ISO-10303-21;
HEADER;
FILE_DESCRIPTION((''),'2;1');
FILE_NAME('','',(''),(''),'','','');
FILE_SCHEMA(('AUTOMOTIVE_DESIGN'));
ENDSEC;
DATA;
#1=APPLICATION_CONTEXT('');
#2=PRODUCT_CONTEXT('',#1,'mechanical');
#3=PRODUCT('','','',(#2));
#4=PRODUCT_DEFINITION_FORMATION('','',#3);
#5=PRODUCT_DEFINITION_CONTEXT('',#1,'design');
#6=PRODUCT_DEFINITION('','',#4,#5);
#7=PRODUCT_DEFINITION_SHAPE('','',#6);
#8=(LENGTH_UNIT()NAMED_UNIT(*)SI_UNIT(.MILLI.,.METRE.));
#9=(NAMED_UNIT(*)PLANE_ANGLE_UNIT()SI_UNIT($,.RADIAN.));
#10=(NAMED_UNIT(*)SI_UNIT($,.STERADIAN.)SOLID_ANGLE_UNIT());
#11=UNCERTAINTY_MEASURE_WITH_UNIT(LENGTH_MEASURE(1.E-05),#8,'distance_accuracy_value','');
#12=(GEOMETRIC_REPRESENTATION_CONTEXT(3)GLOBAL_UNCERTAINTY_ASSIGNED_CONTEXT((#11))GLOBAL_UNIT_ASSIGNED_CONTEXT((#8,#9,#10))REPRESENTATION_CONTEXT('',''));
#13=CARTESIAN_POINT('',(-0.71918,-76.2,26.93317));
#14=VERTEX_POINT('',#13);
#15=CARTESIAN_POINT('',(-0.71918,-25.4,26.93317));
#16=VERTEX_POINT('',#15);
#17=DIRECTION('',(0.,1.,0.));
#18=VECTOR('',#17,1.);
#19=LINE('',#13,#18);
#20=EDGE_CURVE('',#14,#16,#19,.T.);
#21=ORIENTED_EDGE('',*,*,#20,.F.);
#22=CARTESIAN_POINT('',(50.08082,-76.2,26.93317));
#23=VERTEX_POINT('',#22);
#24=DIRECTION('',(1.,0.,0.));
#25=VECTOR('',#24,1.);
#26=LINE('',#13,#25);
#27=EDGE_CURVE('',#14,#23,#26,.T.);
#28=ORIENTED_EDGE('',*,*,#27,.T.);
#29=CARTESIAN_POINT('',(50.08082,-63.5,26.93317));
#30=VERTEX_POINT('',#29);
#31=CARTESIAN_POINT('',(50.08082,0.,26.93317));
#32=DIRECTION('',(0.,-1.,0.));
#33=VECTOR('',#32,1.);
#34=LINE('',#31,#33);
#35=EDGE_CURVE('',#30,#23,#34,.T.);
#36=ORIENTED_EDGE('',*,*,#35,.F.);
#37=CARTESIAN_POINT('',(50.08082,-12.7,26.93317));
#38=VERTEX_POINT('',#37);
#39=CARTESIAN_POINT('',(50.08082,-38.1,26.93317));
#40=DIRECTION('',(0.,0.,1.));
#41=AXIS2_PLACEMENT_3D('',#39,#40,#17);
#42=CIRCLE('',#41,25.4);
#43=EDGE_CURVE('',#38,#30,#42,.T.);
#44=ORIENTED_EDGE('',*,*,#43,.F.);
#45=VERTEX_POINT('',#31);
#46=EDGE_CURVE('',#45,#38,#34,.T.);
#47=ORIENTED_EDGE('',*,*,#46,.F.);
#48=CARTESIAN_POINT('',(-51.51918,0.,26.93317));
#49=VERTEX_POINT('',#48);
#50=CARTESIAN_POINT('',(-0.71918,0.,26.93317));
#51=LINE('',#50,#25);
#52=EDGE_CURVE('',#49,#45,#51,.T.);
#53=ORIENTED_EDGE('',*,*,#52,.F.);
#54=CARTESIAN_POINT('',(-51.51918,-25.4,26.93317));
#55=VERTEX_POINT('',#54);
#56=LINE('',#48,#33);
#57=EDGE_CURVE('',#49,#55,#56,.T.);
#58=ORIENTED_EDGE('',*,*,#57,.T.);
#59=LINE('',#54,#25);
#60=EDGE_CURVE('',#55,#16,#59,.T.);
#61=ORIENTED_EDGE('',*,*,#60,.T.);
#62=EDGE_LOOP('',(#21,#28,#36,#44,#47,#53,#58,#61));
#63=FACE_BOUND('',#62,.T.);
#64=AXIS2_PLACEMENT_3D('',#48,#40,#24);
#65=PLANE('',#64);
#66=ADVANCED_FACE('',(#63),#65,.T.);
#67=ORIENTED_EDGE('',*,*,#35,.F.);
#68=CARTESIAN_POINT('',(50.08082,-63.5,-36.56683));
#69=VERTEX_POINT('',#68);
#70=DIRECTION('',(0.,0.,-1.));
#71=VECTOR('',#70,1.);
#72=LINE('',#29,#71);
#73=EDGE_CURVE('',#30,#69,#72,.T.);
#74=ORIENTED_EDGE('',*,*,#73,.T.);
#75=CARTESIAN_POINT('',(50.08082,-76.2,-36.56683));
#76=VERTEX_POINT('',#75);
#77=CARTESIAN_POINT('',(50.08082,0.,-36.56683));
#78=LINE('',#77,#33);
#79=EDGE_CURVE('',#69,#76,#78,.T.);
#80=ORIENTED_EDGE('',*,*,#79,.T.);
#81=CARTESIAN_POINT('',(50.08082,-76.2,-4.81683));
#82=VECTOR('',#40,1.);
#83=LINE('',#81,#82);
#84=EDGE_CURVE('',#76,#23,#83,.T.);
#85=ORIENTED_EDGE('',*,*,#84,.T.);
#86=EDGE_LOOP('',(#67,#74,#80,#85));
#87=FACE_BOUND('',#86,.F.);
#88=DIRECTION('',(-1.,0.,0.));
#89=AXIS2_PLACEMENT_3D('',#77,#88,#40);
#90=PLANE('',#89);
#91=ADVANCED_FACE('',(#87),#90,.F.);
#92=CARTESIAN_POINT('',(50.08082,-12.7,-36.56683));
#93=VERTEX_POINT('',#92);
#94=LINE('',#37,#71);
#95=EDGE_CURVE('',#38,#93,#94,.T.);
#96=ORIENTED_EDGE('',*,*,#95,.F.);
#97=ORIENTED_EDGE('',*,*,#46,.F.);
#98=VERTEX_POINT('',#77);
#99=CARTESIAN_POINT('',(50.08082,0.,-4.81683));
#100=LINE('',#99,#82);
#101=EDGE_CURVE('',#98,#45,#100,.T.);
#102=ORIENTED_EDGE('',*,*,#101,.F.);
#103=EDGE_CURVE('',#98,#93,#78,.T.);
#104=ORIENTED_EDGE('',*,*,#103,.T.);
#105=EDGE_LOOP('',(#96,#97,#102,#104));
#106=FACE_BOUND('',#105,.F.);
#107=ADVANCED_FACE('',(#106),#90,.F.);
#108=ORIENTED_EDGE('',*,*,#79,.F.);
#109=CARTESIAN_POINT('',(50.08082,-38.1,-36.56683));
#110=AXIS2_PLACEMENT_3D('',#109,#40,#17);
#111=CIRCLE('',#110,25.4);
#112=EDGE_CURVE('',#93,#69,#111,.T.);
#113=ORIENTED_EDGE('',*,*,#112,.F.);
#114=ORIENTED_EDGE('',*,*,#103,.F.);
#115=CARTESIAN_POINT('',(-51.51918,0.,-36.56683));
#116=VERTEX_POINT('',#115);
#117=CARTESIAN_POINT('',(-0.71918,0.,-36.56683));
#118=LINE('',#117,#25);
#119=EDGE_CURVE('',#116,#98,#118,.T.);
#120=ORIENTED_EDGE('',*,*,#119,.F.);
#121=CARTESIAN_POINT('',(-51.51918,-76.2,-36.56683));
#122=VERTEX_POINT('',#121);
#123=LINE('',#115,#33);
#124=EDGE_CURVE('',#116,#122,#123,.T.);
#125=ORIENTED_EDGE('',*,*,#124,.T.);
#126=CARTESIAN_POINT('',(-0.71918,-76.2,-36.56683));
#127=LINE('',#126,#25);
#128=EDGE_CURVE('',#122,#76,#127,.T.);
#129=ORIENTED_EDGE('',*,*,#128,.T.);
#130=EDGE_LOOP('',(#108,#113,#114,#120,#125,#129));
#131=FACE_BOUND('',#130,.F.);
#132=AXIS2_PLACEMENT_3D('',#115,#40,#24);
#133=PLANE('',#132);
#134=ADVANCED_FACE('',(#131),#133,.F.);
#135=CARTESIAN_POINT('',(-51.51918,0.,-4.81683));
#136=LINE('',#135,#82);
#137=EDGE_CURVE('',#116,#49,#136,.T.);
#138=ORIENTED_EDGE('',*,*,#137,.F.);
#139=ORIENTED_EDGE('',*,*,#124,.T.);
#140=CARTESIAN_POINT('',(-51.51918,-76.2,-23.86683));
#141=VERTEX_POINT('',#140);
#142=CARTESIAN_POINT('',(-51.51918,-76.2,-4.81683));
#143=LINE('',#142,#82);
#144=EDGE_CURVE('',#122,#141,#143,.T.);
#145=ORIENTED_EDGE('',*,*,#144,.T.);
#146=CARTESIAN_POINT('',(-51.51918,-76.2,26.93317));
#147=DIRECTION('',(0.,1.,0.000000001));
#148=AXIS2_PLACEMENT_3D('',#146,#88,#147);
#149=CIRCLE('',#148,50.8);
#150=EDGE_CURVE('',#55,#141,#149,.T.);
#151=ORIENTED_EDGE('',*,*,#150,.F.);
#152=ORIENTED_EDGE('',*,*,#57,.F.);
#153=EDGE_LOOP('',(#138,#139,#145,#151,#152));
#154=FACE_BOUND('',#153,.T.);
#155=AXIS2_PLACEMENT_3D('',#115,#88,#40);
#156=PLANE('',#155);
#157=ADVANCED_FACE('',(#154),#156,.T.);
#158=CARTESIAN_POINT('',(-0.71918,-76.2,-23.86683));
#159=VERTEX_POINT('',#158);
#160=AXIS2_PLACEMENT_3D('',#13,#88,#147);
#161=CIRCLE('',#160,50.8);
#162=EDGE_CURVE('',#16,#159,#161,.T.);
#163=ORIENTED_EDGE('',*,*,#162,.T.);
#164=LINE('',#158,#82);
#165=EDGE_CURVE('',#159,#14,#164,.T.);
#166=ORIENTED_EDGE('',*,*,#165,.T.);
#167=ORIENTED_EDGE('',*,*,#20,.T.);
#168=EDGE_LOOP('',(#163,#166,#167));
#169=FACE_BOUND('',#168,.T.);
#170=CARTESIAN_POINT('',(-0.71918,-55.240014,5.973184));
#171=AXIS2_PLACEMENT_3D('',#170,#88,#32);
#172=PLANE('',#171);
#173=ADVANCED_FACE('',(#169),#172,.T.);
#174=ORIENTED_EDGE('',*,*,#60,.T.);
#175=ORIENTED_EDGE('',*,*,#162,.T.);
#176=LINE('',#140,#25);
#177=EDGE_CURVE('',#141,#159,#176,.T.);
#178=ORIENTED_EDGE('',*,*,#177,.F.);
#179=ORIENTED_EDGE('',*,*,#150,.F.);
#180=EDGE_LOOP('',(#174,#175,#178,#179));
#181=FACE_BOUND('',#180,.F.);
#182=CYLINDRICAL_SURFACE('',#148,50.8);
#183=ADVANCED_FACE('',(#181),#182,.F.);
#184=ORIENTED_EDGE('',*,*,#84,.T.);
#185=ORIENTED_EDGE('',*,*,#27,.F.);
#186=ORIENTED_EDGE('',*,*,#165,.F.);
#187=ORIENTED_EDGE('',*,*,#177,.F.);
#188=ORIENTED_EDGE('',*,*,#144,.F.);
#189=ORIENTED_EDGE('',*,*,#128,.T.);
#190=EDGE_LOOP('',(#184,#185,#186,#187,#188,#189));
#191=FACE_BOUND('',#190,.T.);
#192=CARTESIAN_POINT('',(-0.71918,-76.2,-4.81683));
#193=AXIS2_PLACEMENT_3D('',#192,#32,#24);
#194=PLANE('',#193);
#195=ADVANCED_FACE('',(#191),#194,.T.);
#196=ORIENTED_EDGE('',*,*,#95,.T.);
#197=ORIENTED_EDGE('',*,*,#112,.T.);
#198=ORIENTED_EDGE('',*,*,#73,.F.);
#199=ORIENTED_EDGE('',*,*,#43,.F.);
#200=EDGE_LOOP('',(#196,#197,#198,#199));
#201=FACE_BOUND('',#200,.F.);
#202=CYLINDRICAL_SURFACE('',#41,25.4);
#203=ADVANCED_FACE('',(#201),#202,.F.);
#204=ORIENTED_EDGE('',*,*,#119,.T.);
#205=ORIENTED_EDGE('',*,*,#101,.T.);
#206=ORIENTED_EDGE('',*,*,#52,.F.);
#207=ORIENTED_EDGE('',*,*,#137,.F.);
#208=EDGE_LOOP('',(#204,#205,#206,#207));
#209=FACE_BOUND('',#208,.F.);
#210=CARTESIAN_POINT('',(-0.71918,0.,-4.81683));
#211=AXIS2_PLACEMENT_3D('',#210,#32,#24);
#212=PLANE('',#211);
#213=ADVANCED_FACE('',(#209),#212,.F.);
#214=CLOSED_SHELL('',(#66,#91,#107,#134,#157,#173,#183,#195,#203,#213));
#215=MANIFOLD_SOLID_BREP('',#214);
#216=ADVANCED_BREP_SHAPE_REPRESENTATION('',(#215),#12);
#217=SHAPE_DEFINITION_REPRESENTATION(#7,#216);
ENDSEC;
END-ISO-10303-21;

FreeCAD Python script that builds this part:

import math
import FreeCAD as App
import Part
import Sketcher
from FreeCAD import Vector
Q = App.Units.Quantity


def add_polygon(sketch, points):
    """Adds a closed chain of lines whose ends are joined by coincident constraints."""
    first, n = sketch.GeometryCount, len(points)
    for a, b in zip(points, points[1:] + points[:1]):
        sketch.addGeometry(Part.LineSegment(App.Vector(*a, 0), App.Vector(*b, 0)), False)
    for i in range(n):
        sketch.addConstraint(Sketcher.Constraint("Coincident", first + i, 2, first + (i + 1) % n, 1))

doc = App.newDocument("Part")
body = doc.addObject("PartDesign::Body", "Body")

# Sketch on XZ plane
sketch1 = doc.addObject("Sketcher::SketchObject", "Sketch")
body.addObject(sketch1)
sketch1.AttachmentSupport = (doc.XZ_Plane, [""])
sketch1.MapMode = "FlatFace"
add_polygon(sketch1, [(-52, 27), (-52, -37), (50, -37), (50, 27)])  # lines 0-3
sketch1.addConstraint([
    Sketcher.Constraint("Vertical", 0),
    Sketcher.Constraint("Horizontal", 1),
    Sketcher.Constraint("Vertical", 2),
    Sketcher.Constraint("Horizontal", 3),
    Sketcher.Constraint("DistanceX", 1, 1, 1, 2, Q("4 in")),
    Sketcher.Constraint("DistanceY", 0, 2, 0, 1, Q("2.5 in")),
    Sketcher.Constraint("DistanceX", 0, 2, -1, 1, 51.51918),
    Sketcher.Constraint("DistanceY", 0, 2, -1, 1, 36.56683),
])
pad1 = doc.addObject("PartDesign::Pad", "Pad")
body.addObject(pad1)
pad1.Profile = sketch1
pad1.Length = Q("3 in")

# Sketch on XY plane
sketch2 = doc.addObject("Sketcher::SketchObject", "Sketch001")
body.addObject(sketch2)
sketch2.AttachmentSupport = (doc.XY_Plane, [""])
sketch2.MapMode = "FlatFace"
sketch2.AttachmentOffset = App.Placement(Vector(0, 0, 26.93317), App.Rotation())
sketch2.addGeometry([
    Part.LineSegment(Vector(50, -64, 0), Vector(50, -13, 0)),
    Part.ArcOfCircle(Part.Circle(Vector(50, -38, 0), Vector(0, 0, 1), 25), math.radians(90), math.radians(270)),
], False)
sketch2.addConstraint([
    Sketcher.Constraint("Coincident", 0, 1, 1, 2),
    Sketcher.Constraint("Coincident", 1, 1, 0, 2),
    Sketcher.Constraint("Vertical", 0),
    Sketcher.Constraint("Vertical", 1, 3, 0, 1),
    Sketcher.Constraint("Radius", 1, Q("1 in")),
    Sketcher.Constraint("DistanceY", 1, 3, -1, 1, Q("1.5 in")),
    Sketcher.Constraint("DistanceX", -1, 1, 1, 3, 50.08082),
])
pocket1 = doc.addObject("PartDesign::Pocket", "Pocket")
body.addObject(pocket1)
pocket1.Profile = sketch2
pocket1.Type = "ThroughAll"

# Sketch on YZ plane
sketch3 = doc.addObject("Sketcher::SketchObject", "Sketch002")
body.addObject(sketch3)
sketch3.AttachmentSupport = (doc.YZ_Plane, [""])
sketch3.MapMode = "FlatFace"
sketch3.AttachmentOffset = App.Placement(Vector(0, 0, -51.51918), App.Rotation())
sketch3.addGeometry([
    Part.LineSegment(Vector(-76, 27, 0), Vector(-25, 27, 0)),
    Part.ArcOfCircle(Part.Circle(Vector(-76, 27, 0), Vector(0, 0, 1), 51), math.radians(-90), math.radians(0)),
    Part.LineSegment(Vector(-76, -24, 0), Vector(-76, 27, 0)),
], False)
sketch3.addConstraint([
    Sketcher.Constraint("Coincident", 0, 2, 1, 2),
    Sketcher.Constraint("Coincident", 1, 1, 2, 1),
    Sketcher.Constraint("Coincident", 2, 2, 0, 1),
    Sketcher.Constraint("Horizontal", 0),
    Sketcher.Constraint("Vertical", 2),
    Sketcher.Constraint("Coincident", 2, 2, 1, 3),
    Sketcher.Constraint("Radius", 1, Q("2 in")),
    Sketcher.Constraint("DistanceX", 1, 3, -1, 1, Q("3 in")),
    Sketcher.Constraint("DistanceY", -1, 1, 1, 3, 26.93317),
])
pocket2 = doc.addObject("PartDesign::Pocket", "Pocket001")
body.addObject(pocket2)
pocket2.Profile = sketch3
pocket2.Length = Q("2 in")
pocket2.Reversed = True

doc.recompute()
